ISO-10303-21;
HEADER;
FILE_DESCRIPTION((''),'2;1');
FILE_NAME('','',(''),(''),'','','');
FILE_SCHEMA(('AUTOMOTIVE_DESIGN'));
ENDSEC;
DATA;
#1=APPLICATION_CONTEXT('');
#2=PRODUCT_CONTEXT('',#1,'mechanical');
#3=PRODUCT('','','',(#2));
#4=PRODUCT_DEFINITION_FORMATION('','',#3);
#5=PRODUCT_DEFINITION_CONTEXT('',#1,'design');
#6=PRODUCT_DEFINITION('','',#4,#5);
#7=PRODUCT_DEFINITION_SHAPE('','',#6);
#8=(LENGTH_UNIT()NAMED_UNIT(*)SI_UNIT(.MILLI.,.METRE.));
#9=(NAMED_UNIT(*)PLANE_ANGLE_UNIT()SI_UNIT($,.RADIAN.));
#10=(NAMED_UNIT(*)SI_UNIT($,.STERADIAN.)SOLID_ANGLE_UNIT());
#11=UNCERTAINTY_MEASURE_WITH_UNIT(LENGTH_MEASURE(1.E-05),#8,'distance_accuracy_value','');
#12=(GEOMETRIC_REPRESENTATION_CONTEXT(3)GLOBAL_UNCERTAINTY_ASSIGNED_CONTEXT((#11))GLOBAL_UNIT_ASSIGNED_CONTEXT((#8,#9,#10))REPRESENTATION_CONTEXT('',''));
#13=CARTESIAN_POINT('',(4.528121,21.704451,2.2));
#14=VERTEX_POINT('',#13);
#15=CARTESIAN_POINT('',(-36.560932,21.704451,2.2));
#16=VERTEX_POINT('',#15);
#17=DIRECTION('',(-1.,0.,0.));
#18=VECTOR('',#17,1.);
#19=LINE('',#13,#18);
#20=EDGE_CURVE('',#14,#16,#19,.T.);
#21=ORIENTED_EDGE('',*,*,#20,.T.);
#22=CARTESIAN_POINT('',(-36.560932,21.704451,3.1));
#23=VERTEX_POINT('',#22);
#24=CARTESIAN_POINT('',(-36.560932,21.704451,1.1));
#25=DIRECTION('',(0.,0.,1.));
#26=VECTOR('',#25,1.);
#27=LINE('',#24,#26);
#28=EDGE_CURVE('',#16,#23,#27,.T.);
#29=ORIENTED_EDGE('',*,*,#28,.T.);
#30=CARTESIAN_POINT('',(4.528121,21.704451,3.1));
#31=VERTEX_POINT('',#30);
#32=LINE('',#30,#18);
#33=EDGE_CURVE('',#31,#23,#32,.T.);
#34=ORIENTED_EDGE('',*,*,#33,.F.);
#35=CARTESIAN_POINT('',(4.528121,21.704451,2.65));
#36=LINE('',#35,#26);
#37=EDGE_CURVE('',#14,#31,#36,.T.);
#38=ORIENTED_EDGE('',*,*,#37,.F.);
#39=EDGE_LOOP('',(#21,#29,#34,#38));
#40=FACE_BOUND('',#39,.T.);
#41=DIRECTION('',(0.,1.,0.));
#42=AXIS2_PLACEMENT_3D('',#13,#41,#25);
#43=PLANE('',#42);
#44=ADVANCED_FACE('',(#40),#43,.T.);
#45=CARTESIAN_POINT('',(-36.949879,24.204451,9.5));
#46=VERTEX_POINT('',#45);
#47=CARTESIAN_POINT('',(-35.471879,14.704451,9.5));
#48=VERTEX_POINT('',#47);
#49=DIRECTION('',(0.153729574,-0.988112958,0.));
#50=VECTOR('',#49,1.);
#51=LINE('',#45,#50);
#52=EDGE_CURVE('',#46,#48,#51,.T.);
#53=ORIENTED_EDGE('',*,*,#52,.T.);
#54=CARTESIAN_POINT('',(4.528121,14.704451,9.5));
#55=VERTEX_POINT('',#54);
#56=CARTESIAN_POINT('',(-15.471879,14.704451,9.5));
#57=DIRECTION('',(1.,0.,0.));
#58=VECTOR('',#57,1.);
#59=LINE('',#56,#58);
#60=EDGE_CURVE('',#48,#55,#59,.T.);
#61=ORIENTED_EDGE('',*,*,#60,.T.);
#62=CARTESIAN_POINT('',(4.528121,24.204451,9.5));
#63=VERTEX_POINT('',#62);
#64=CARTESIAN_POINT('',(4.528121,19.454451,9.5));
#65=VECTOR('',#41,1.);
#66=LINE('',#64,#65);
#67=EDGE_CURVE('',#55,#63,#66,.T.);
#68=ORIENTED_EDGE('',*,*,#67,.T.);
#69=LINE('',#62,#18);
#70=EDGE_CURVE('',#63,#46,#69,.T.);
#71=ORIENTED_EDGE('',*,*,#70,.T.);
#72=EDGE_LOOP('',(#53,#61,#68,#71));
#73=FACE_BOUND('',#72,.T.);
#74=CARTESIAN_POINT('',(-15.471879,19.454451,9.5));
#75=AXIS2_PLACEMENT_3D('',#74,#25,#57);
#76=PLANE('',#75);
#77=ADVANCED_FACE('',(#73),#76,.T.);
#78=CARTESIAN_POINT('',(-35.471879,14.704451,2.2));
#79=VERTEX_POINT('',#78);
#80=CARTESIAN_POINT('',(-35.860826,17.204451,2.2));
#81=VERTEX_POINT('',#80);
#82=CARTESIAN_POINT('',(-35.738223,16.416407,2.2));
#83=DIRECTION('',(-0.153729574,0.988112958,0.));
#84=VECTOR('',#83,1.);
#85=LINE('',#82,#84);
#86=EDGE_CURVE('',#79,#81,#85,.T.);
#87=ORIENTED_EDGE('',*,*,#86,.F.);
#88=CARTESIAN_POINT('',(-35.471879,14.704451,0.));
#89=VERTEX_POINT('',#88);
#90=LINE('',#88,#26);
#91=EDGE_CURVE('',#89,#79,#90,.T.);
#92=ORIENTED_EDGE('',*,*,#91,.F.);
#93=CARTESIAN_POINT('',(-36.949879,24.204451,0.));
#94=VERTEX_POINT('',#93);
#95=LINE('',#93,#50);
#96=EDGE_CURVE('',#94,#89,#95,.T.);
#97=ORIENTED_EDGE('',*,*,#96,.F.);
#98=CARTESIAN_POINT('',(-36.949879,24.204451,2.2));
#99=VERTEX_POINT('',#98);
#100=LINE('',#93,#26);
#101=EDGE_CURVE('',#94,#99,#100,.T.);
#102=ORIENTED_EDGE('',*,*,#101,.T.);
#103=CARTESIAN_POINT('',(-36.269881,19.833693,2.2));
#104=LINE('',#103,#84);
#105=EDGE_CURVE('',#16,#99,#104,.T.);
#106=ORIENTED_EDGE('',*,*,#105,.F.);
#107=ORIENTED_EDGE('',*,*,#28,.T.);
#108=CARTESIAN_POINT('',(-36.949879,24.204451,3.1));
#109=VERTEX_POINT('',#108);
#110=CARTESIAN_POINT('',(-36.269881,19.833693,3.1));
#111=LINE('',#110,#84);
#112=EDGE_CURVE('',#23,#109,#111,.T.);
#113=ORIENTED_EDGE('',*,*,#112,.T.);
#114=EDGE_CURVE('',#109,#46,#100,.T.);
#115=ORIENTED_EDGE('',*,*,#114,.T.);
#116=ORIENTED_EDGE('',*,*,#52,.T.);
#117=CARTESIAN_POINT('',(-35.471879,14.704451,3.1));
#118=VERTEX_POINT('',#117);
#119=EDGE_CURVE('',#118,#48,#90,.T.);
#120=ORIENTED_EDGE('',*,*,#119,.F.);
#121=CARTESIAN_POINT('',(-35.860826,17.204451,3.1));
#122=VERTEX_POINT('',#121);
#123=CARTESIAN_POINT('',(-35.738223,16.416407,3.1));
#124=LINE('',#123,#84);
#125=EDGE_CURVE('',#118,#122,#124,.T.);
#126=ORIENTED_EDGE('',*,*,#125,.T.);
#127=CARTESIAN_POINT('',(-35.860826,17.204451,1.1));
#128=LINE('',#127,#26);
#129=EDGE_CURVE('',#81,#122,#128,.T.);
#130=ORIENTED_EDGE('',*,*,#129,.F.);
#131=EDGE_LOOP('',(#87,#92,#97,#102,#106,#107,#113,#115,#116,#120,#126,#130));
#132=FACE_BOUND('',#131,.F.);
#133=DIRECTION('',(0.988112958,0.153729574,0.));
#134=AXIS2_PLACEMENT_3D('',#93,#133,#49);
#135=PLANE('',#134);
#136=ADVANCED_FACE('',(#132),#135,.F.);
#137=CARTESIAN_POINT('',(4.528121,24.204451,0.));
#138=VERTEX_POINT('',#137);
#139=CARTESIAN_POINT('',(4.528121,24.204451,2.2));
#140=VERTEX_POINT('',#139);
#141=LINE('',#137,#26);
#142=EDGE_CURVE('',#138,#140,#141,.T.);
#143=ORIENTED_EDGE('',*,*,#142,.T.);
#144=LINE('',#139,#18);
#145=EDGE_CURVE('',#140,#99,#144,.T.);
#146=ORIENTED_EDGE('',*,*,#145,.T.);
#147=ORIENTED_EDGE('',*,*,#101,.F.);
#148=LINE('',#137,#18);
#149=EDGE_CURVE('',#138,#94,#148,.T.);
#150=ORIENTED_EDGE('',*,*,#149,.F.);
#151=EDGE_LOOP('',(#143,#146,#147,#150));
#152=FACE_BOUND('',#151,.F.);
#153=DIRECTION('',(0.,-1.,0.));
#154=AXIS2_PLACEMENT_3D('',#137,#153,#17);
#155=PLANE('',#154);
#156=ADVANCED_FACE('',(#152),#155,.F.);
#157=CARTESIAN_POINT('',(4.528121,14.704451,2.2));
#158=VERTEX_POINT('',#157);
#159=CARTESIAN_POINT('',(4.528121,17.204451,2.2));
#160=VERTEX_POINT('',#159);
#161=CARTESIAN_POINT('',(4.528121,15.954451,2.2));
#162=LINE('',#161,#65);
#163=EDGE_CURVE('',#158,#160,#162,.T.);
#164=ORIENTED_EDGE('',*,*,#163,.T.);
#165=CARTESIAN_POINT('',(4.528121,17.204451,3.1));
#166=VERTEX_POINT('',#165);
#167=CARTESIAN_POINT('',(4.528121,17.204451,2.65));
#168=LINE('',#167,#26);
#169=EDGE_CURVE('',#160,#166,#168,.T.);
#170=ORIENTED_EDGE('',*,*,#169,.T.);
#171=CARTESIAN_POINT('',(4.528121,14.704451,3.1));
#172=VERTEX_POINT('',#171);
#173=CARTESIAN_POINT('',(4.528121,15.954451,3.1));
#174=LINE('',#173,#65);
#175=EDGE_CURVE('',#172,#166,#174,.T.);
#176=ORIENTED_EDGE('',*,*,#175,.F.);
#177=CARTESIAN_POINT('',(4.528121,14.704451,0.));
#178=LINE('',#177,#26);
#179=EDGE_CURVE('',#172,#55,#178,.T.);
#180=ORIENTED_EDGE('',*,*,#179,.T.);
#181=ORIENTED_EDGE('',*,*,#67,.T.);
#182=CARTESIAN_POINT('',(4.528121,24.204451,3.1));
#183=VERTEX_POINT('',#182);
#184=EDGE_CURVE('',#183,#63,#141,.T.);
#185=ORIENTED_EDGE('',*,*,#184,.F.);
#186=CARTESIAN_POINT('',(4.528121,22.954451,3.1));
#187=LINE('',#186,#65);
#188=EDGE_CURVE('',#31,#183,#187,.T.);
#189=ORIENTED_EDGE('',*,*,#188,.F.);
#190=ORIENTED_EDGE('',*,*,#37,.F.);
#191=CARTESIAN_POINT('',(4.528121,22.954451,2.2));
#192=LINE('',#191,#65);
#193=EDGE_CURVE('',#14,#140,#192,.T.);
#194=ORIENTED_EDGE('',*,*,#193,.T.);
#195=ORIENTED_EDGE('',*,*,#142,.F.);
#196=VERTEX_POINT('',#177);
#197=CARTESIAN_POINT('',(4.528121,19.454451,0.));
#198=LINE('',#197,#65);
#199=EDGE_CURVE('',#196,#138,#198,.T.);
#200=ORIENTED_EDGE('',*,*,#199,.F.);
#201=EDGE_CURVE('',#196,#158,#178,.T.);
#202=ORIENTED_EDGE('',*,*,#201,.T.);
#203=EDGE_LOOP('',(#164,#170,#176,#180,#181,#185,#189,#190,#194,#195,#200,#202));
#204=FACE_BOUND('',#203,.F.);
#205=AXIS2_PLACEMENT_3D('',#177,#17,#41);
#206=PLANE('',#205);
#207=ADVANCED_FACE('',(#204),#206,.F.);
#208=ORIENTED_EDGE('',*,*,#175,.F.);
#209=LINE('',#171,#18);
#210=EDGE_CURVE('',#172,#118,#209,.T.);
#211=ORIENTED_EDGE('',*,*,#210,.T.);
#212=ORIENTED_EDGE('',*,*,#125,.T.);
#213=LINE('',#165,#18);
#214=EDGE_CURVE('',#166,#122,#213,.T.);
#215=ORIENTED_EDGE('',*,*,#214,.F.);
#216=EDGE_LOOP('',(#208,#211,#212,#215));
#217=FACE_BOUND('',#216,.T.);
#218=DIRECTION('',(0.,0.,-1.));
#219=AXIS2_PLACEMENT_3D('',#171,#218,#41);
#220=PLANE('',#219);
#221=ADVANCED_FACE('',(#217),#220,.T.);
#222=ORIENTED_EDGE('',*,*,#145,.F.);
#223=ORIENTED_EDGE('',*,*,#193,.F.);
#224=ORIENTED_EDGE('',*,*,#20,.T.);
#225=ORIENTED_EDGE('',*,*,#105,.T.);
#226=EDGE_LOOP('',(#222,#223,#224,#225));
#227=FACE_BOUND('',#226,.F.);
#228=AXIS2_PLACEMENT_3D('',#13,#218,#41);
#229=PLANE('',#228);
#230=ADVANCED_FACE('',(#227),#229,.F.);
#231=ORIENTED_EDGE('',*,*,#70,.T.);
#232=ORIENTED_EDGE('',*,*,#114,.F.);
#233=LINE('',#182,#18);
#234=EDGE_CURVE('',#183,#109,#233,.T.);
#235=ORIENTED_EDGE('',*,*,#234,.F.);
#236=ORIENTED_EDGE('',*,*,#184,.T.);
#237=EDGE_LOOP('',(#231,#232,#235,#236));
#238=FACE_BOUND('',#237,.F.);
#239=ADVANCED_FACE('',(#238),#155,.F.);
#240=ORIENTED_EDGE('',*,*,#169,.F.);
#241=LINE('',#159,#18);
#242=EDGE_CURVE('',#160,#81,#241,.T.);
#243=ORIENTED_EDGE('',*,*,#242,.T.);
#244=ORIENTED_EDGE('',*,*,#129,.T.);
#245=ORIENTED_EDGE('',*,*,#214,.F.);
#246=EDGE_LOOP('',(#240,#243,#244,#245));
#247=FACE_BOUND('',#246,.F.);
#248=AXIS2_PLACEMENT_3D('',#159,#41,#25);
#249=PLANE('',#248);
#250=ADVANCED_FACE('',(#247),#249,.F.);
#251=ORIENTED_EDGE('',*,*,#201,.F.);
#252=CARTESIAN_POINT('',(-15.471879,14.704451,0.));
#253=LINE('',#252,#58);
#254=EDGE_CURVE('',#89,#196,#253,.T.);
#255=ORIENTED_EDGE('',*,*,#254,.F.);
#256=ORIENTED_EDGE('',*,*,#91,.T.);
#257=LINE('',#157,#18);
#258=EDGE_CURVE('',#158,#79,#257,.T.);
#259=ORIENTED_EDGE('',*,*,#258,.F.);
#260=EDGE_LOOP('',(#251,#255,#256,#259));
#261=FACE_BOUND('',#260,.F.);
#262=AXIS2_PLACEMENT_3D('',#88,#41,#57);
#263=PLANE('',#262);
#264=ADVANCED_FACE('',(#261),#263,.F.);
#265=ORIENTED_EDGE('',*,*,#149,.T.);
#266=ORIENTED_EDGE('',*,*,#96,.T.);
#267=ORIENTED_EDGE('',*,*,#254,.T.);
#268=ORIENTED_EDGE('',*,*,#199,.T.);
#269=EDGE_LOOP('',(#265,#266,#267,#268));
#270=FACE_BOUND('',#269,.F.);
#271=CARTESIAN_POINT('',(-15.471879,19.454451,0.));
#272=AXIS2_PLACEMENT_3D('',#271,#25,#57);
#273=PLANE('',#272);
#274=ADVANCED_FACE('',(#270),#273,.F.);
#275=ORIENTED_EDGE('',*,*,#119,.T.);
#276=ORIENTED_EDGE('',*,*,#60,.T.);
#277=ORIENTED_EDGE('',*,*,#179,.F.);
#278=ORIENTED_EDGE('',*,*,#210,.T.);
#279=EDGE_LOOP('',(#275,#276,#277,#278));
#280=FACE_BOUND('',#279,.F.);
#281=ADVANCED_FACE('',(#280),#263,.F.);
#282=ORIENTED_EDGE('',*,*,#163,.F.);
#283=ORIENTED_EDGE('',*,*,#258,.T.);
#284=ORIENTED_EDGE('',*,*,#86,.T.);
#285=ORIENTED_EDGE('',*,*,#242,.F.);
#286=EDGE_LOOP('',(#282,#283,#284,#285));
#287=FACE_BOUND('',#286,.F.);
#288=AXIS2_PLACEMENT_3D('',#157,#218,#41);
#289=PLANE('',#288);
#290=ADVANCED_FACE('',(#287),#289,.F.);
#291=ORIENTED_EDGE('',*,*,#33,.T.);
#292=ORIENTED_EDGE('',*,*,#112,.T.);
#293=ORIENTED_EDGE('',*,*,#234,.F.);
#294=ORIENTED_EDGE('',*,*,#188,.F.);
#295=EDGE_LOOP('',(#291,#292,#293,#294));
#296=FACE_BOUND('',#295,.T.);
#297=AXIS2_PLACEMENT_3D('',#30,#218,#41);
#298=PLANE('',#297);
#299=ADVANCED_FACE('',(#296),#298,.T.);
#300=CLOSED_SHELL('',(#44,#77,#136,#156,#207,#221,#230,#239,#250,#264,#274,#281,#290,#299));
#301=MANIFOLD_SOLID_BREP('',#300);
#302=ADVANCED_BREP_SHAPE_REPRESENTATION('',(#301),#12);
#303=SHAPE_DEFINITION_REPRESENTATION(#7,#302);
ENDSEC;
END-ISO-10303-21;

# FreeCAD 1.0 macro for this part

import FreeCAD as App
import Part
import Sketcher
from FreeCAD import Vector
Q = App.Units.Quantity


def add_polygon(sketch, points):
    """Adds a closed chain of lines whose ends are joined by coincident constraints."""
    first, n = sketch.GeometryCount, len(points)
    for a, b in zip(points, points[1:] + points[:1]):
        sketch.addGeometry(Part.LineSegment(App.Vector(*a, 0), App.Vector(*b, 0)), False)
    for i in range(n):
        sketch.addConstraint(Sketcher.Constraint("Coincident", first + i, 2, first + (i + 1) % n, 1))

doc = App.newDocument("Part")
body = doc.addObject("PartDesign::Body", "Body")

# Sketch on XY plane
sketch1 = body.newObject("Sketcher::SketchObject", "Sketch")
sketch1.AttachmentSupport = (doc.getObject("XY_Plane"), [""])
sketch1.MapMode = "FlatFace"
add_polygon(sketch1, [(-35, 15), (5, 15), (5, 24), (-37, 24)])  # lines 0-3
sketch1.addConstraint(Sketcher.Constraint("Horizontal", 0))
sketch1.addConstraint(Sketcher.Constraint("Vertical", 1))
sketch1.addConstraint(Sketcher.Constraint("Horizontal", 2))
sketch1.addConstraint(Sketcher.Constraint("DistanceX", 0, 1, 0, 2, Q("40 mm")))
sketch1.addConstraint(Sketcher.Constraint("DistanceY", 1, 1, 1, 2, Q("9.5 mm")))
sketch1.addConstraint(Sketcher.Constraint("DistanceX", 2, 2, 2, 1, Q("41.478 mm")))
sketch1.addConstraint(Sketcher.Constraint("DistanceX", -1, 1, 0, 2, Q("4.528121 mm")))
sketch1.addConstraint(Sketcher.Constraint("DistanceY", -1, 1, 0, 2, Q("14.704451 mm")))
pad1 = body.newObject("PartDesign::Pad", "Pad")
pad1.Profile = sketch1
pad1.Length = 9.5

# Sketch on YZ plane
sketch2 = body.newObject("Sketcher::SketchObject", "Sketch001")
sketch2.AttachmentSupport = (doc.getObject("YZ_Plane"), [""])
sketch2.MapMode = "FlatFace"
sketch2.AttachmentOffset = App.Placement(Vector(0, 0, 4.528121), App.Rotation())
add_polygon(sketch2, [(14.7, 3.1), (14.7, 2.2), (17.2, 2.2), (17.2, 3.1)])  # lines 0-3
add_polygon(sketch2, [(21.7, 3.1), (21.7, 2.2), (24.2, 2.2), (24.2, 3.1)])  # lines 4-7
sketch2.addConstraint(Sketcher.Constraint("Vertical", 0))
sketch2.addConstraint(Sketcher.Constraint("Horizontal", 1))
sketch2.addConstraint(Sketcher.Constraint("Vertical", 2))
sketch2.addConstraint(Sketcher.Constraint("Horizontal", 3))
sketch2.addConstraint(Sketcher.Constraint("Vertical", 4))
sketch2.addConstraint(Sketcher.Constraint("Horizontal", 5))
sketch2.addConstraint(Sketcher.Constraint("Vertical", 6))
sketch2.addConstraint(Sketcher.Constraint("Horizontal", 7))
sketch2.addConstraint(Sketcher.Constraint("Horizontal", 1, 2, 4, 2))
sketch2.addConstraint(Sketcher.Constraint("Horizontal", 3, 2, 6, 2))
sketch2.addConstraint(Sketcher.Constraint("Equal", 3, 5))
sketch2.addConstraint(Sketcher.Constraint("DistanceX", 1, 1, 1, 2, Q("2.5 mm")))
sketch2.addConstraint(Sketcher.Constraint("DistanceY", 0, 2, 0, 1, Q("0.9 mm")))
sketch2.addConstraint(Sketcher.Constraint("DistanceX", 0, 2, 4, 2, Q("7 mm")))
sketch2.addConstraint(Sketcher.Constraint("DistanceY", -1, 1, 0, 2, Q("2.2 mm")))
sketch2.addConstraint(Sketcher.Constraint("DistanceX", -1, 1, 0, 2, Q("14.704451 mm")))
pocket1 = body.newObject("PartDesign::Pocket", "Pocket")
pocket1.Profile = sketch2
pocket1.Length = 50

doc.recompute()
